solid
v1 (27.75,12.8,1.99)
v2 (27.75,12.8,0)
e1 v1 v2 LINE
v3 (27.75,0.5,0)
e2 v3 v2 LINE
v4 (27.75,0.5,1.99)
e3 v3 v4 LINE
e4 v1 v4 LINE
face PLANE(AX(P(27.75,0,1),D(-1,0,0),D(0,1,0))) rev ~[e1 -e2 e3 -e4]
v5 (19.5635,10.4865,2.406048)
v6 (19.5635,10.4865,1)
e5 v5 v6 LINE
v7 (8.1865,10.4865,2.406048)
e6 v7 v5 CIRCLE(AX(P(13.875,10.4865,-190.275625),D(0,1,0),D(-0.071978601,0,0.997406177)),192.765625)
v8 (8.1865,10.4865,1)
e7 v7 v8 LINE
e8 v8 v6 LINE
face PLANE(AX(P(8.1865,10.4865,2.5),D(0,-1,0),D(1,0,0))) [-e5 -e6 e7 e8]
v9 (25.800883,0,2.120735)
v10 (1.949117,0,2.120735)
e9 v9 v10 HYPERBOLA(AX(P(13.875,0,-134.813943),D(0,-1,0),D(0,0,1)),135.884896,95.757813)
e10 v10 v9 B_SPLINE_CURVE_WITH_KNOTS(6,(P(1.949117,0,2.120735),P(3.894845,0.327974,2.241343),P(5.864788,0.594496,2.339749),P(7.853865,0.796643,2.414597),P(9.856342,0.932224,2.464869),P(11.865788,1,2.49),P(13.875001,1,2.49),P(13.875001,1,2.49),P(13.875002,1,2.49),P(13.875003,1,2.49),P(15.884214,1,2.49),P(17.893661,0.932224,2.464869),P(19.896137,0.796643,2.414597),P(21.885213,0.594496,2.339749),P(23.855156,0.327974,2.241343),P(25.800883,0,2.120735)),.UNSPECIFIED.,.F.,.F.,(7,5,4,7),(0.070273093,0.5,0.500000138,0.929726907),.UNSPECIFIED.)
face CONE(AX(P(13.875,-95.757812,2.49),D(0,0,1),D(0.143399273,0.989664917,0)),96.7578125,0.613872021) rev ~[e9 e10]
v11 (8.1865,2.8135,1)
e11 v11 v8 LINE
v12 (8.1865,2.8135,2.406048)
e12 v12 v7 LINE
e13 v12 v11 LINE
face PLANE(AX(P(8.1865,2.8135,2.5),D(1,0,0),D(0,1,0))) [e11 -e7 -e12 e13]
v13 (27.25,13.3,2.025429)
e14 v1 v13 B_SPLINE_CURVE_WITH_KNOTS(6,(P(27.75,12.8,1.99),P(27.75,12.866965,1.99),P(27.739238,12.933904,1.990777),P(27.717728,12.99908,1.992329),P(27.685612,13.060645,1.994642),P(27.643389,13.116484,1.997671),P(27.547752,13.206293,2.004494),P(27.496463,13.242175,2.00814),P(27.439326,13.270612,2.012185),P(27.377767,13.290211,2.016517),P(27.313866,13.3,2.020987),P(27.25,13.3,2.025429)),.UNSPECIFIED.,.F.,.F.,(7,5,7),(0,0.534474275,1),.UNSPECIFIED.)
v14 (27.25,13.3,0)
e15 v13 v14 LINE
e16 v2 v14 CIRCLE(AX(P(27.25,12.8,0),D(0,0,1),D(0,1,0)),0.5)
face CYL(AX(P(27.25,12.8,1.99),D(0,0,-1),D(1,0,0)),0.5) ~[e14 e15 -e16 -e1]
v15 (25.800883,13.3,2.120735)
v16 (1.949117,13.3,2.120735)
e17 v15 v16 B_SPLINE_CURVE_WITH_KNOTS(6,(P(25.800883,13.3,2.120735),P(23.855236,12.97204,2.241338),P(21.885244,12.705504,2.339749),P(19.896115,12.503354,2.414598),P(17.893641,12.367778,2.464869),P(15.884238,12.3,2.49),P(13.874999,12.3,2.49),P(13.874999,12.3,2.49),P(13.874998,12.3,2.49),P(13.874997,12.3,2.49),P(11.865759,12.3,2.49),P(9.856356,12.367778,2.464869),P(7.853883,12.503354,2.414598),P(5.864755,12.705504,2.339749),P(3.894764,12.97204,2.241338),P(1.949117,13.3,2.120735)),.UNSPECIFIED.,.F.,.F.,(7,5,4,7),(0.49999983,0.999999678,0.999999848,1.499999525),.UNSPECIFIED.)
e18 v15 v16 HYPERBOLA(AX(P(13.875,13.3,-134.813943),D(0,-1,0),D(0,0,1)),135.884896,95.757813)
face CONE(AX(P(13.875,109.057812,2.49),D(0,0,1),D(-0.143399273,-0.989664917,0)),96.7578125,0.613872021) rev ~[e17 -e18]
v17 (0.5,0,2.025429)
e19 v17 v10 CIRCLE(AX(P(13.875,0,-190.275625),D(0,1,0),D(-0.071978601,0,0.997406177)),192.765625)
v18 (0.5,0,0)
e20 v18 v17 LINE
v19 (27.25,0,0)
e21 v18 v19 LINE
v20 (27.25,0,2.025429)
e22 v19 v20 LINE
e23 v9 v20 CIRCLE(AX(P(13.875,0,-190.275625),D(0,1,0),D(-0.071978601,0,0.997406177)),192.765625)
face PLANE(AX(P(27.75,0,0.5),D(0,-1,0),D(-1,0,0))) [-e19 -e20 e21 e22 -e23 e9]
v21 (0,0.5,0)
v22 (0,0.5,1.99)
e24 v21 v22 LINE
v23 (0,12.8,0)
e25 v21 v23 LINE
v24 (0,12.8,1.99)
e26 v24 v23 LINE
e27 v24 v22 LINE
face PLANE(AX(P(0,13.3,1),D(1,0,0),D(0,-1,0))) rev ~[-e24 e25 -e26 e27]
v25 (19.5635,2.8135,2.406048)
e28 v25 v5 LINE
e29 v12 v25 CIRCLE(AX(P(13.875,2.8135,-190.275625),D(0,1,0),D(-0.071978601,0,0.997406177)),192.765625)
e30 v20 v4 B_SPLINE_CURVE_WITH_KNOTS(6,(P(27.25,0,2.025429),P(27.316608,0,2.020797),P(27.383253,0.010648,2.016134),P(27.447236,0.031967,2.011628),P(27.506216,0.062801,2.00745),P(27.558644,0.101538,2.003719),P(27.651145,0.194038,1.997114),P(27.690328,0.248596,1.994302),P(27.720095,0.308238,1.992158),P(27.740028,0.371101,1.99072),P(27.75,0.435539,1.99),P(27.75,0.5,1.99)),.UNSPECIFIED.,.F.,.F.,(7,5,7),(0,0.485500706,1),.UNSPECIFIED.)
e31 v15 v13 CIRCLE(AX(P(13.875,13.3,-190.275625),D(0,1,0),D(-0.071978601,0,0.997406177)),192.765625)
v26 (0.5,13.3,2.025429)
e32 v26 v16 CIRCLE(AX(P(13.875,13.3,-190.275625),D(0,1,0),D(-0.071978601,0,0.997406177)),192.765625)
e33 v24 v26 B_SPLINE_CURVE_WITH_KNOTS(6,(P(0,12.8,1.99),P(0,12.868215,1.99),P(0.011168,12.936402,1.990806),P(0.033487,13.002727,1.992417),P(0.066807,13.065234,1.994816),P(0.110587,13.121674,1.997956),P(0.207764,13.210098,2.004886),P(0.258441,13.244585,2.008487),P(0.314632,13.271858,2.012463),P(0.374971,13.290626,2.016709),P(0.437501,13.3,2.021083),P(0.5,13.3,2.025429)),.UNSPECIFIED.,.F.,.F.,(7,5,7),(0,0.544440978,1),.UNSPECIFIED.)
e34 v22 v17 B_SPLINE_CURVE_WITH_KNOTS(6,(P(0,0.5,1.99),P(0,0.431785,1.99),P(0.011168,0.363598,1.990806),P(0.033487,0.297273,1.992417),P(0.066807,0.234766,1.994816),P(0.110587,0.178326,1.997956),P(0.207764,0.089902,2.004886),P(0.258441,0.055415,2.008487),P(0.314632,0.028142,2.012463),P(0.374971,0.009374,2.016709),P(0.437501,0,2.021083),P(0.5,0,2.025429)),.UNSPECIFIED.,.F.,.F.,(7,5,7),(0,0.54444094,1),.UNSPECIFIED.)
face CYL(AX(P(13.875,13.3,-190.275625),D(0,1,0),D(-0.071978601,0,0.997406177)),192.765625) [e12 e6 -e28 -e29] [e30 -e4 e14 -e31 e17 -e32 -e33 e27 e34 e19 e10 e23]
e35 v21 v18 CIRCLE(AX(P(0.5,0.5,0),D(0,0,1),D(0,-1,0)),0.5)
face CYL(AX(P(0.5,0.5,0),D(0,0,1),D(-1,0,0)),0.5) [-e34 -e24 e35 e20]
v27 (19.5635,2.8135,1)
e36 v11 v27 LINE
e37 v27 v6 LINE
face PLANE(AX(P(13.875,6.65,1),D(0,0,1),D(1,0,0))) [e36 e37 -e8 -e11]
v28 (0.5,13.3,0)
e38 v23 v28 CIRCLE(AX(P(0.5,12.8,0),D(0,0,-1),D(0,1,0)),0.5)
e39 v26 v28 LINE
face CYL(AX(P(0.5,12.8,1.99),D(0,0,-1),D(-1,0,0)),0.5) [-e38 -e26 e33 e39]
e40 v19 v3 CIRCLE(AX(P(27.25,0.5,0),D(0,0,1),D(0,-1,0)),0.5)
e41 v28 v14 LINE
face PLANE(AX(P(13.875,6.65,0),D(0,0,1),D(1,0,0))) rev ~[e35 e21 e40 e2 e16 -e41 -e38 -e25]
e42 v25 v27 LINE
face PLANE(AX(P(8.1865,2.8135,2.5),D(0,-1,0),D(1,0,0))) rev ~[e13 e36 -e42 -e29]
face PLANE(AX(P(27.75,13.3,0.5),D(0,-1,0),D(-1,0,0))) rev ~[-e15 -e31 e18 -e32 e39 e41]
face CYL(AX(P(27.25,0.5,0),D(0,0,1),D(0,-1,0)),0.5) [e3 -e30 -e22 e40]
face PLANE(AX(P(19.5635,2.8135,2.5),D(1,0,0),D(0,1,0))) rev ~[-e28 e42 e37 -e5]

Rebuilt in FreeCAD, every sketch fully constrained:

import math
import FreeCAD as App
import Part
import Sketcher
from FreeCAD import Vector
Q = App.Units.Quantity


def edges_at(feature, points):
    """Names of the edges that pass closest to the given points."""
    edges = feature.Shape.Edges
    near = lambda p: min(range(len(edges)), key=lambda i: edges[i].distToShape(Part.Vertex(*p))[0])
    return sorted({f"Edge{near(p) + 1}" for p in points})

doc = App.newDocument("Part")
body = doc.addObject("PartDesign::Body", "Body")

# Sketch on XY plane
sketch1 = body.newObject("Sketcher::SketchObject", "Sketch")
sketch1.AttachmentSupport = (doc.getObject("XY_Plane"), [""])
sketch1.MapMode = "FlatFace"
sketch1.addGeometry([
    Part.LineSegment(Vector(0, 13, 0), Vector(0, 0, 0)),
    Part.LineSegment(Vector(0, 0, 0), Vector(28, 0, 0)),
    Part.LineSegment(Vector(28, 0, 0), Vector(28, 13, 0)),
    Part.LineSegment(Vector(28, 13, 0), Vector(0, 13, 0)),
], False)
sketch1.addConstraint([
    Sketcher.Constraint("Coincident", 0, 2, 1, 1),
    Sketcher.Constraint("Coincident", 1, 2, 2, 1),
    Sketcher.Constraint("Coincident", 2, 2, 3, 1),
    Sketcher.Constraint("Coincident", 3, 2, 0, 1),
    Sketcher.Constraint("Vertical", 0),
    Sketcher.Constraint("Horizontal", 1),
    Sketcher.Constraint("Vertical", 2),
    Sketcher.Constraint("Horizontal", 3),
    Sketcher.Constraint("Coincident", 0, 2, -1, 1),
    Sketcher.Constraint("DistanceY", 0, 2, 0, 1, Q("13.3 mm")),
    Sketcher.Constraint("DistanceX", 1, 1, 1, 2, Q("27.75 mm")),
])
pad1 = body.newObject("PartDesign::Pad", "Pad")
pad1.Profile = sketch1
pad1.Length = 1

# Sketch on XY plane
sketch2 = body.newObject("Sketcher::SketchObject", "Sketch001")
sketch2.AttachmentSupport = (doc.getObject("XY_Plane"), [""])
sketch2.MapMode = "FlatFace"
sketch2.AttachmentOffset = App.Placement(Vector(0, 0, 1), App.Rotation())
sketch2.addGeometry([
    Part.ArcOfCircle(Part.Circle(Vector(14, 109, 0), Vector(0, 0, 1), 97), math.radians(-98.24), math.radians(-81.76)),
    Part.LineSegment(Vector(0, 13, 0), Vector(0, 0, 0)),
    Part.ArcOfCircle(Part.Circle(Vector(14, -96, 0), Vector(0, 0, 1), 97), math.radians(81.76), math.radians(98.24)),
    Part.LineSegment(Vector(28, 0, 0), Vector(28, 13, 0)),
], False)
sketch2.addConstraint([
    Sketcher.Constraint("Coincident", 0, 1, 1, 1),
    Sketcher.Constraint("Coincident", 1, 2, 2, 2),
    Sketcher.Constraint("Coincident", 2, 1, 3, 1),
    Sketcher.Constraint("Coincident", 3, 2, 0, 2),
    Sketcher.Constraint("Vertical", 1),
    Sketcher.Constraint("Vertical", 3),
    Sketcher.Constraint("Coincident", 1, 2, -1, 1),
    Sketcher.Constraint("Equal", 0, 2),
    Sketcher.Constraint("PointOnObject", 2, 1, -1),
    Sketcher.Constraint("Horizontal", 0, 1, 3, 2),
    Sketcher.Constraint("DistanceY", 1, 2, 1, 1, Q("13.3 mm")),
    Sketcher.Constraint("DistanceX", -1, 1, 2, 1, Q("27.75 mm")),
    Sketcher.Constraint("Radius", 0, Q("96.757812 mm")),
])
pad2 = body.newObject("PartDesign::Pad", "Pad001")
pad2.Profile = sketch2
pad2.Length = 1.5

# Sketch on XY plane
sketch3 = body.newObject("Sketcher::SketchObject", "Sketch002")
sketch3.AttachmentSupport = (doc.getObject("XY_Plane"), [""])
sketch3.MapMode = "FlatFace"
sketch3.AttachmentOffset = App.Placement(Vector(0, 0, 0.5), App.Rotation())
sketch3.addGeometry([
    Part.LineSegment(Vector(-10, -10, 0), Vector(-10, 23, 0)),
    Part.LineSegment(Vector(-10, 23, 0), Vector(38, 23, 0)),
    Part.LineSegment(Vector(38, 23, 0), Vector(38, -10, 0)),
    Part.LineSegment(Vector(38, -10, 0), Vector(-10, -10, 0)),
], False)
sketch3.addConstraint([
    Sketcher.Constraint("Coincident", 0, 2, 1, 1),
    Sketcher.Constraint("Coincident", 1, 2, 2, 1),
    Sketcher.Constraint("Coincident", 2, 2, 3, 1),
    Sketcher.Constraint("Coincident", 3, 2, 0, 1),
    Sketcher.Constraint("Vertical", 0),
    Sketcher.Constraint("Horizontal", 1),
    Sketcher.Constraint("Vertical", 2),
    Sketcher.Constraint("Horizontal", 3),
    Sketcher.Constraint("DistanceY", 0, 1, 0, 2, Q("33.3 mm")),
    Sketcher.Constraint("DistanceX", 0, 2, -1, 1, Q("10 mm")),
    Sketcher.Constraint("DistanceY", 2, 2, -1, 1, Q("10 mm")),
    Sketcher.Constraint("DistanceX", 1, 1, 1, 2, Q("47.75 mm")),
])
pad3 = body.newObject("PartDesign::Pad", "Pad002")
pad3.Profile = sketch3
pad3.Length = 0.5
doc.recompute()

chamfer = body.newObject("PartDesign::Chamfer", "Chamfer")
chamfer.Base = (pad3, edges_at(pad3, [(13.875, 12.3, 1), (13.875, 1, 1)]))
chamfer.ChamferType = "Two distances"
chamfer.Size = 1.05
chamfer.Size2 = 1.49

# Sketch on XY plane
sketch4 = body.newObject("Sketcher::SketchObject", "Sketch003")
sketch4.AttachmentSupport = (doc.getObject("XY_Plane"), [""])
sketch4.MapMode = "FlatFace"
sketch4.AttachmentOffset = App.Placement(Vector(0, 0, 0.5), App.Rotation())
sketch4.addGeometry([
    Part.LineSegment(Vector(-10, 23, 0), Vector(38, 23, 0)),  # 0
    Part.LineSegment(Vector(38, 23, 0), Vector(38, -10, 0)),  # 1
    Part.LineSegment(Vector(38, -10, 0), Vector(-10, -10, 0)),  # 2
    Part.LineSegment(Vector(-10, -10, 0), Vector(-10, 23, 0)),  # 3
    Part.LineSegment(Vector(28, 0, 0), Vector(28, 13, 0)),  # 4
    Part.LineSegment(Vector(28, 13, 0), Vector(0, 13, 0)),  # 5
    Part.LineSegment(Vector(0, 13, 0), Vector(0, 0, 0)),  # 6
    Part.LineSegment(Vector(0, 0, 0), Vector(28, 0, 0)),  # 7
], False)
sketch4.addConstraint([
    Sketcher.Constraint("Coincident", 0, 2, 1, 1),
    Sketcher.Constraint("Coincident", 1, 2, 2, 1),
    Sketcher.Constraint("Coincident", 2, 2, 3, 1),
    Sketcher.Constraint("Coincident", 3, 2, 0, 1),
    Sketcher.Constraint("Coincident", 4, 2, 5, 1),
    Sketcher.Constraint("Coincident", 5, 2, 6, 1),
    Sketcher.Constraint("Coincident", 6, 2, 7, 1),
    Sketcher.Constraint("Coincident", 7, 2, 4, 1),
    Sketcher.Constraint("Horizontal", 0),
    Sketcher.Constraint("Vertical", 1),
    Sketcher.Constraint("Horizontal", 2),
    Sketcher.Constraint("Vertical", 3),
    Sketcher.Constraint("Vertical", 4),
    Sketcher.Constraint("Horizontal", 5),
    Sketcher.Constraint("Vertical", 6),
    Sketcher.Constraint("Horizontal", 7),
    Sketcher.Constraint("Coincident", 6, 2, -1, 1),
    Sketcher.Constraint("DistanceY", 1, 2, 1, 1, Q("33.3 mm")),
    Sketcher.Constraint("DistanceY", 4, 1, 4, 2, Q("13.3 mm")),
    Sketcher.Constraint("DistanceY", 1, 2, -1, 1, Q("10 mm")),
    Sketcher.Constraint("DistanceX", 2, 2, -1, 1, Q("10 mm")),
    Sketcher.Constraint("DistanceX", 4, 2, 0, 2, Q("10 mm")),
    Sketcher.Constraint("DistanceX", 0, 1, 0, 2, Q("47.75 mm")),
])
pocket1 = body.newObject("PartDesign::Pocket", "Pocket")
pocket1.Profile = sketch4
pocket1.Length = 5
pocket1.Reversed = True

# Sketch on XZ plane
sketch5 = body.newObject("Sketcher::SketchObject", "Sketch004")
sketch5.AttachmentSupport = (doc.getObject("XZ_Plane"), [""])
sketch5.MapMode = "FlatFace"
sketch5.AttachmentOffset = App.Placement(Vector(0, 0, -13.3), App.Rotation())
sketch5.addGeometry([
    Part.ArcOfCircle(Part.Circle(Vector(13.9, -190.3, 0), Vector(0, 0, 1), 192.8), math.radians(85.87), math.radians(94.13)),
    Part.LineSegment(Vector(0, 2, 0), Vector(0, 3, 0)),
    Part.LineSegment(Vector(0, 3, 0), Vector(27.8, 3, 0)),
    Part.LineSegment(Vector(27.8, 3, 0), Vector(27.8, 2, 0)),
], False)
sketch5.addConstraint([
    Sketcher.Constraint("Coincident", 0, 2, 1, 1),
    Sketcher.Constraint("Coincident", 1, 2, 2, 1),
    Sketcher.Constraint("Coincident", 2, 2, 3, 1),
    Sketcher.Constraint("Coincident", 3, 2, 0, 1),
    Sketcher.Constraint("Vertical", 1),
    Sketcher.Constraint("Horizontal", 2),
    Sketcher.Constraint("Vertical", 3),
    Sketcher.Constraint("PointOnObject", 0, 2, -2),
    Sketcher.Constraint("Horizontal", 0, 2, 3, 2),
    Sketcher.Constraint("DistanceY", 1, 1, 1, 2, Q("1 mm")),
    Sketcher.Constraint("DistanceX", 2, 1, 2, 2, Q("27.75 mm")),
    Sketcher.Constraint("DistanceY", -1, 1, 0, 2, Q("1.99 mm")),
    Sketcher.Constraint("Radius", 0, Q("192.765625 mm")),
])
pocket2 = body.newObject("PartDesign::Pocket", "Pocket001")
pocket2.Profile = sketch5
pocket2.Length = 30
pocket2.Reversed = True
doc.recompute()

fillet = body.newObject("PartDesign::Fillet", "Fillet")
fillet.Base = (pocket2, edges_at(pocket2, [
    (27.75, 13.3, 0.995),
    (27.75, 0, 0.995),
    (0, 13.3, 0.995),
    (0, 0, 0.995),
]))
fillet.Radius = 0.5

# Sketch on XY plane
sketch6 = body.newObject("Sketcher::SketchObject", "Sketch005")
sketch6.AttachmentSupport = (doc.getObject("XY_Plane"), [""])
sketch6.MapMode = "FlatFace"
sketch6.AttachmentOffset = App.Placement(Vector(0, 0, 2.5), App.Rotation())
sketch6.addGeometry([
    Part.LineSegment(Vector(8, 10, 0), Vector(8, 3, 0)),
    Part.LineSegment(Vector(8, 3, 0), Vector(20, 3, 0)),
    Part.LineSegment(Vector(20, 3, 0), Vector(20, 10, 0)),
    Part.LineSegment(Vector(20, 10, 0), Vector(8, 10, 0)),
], False)
sketch6.addConstraint([
    Sketcher.Constraint("Coincident", 0, 2, 1, 1),
    Sketcher.Constraint("Coincident", 1, 2, 2, 1),
    Sketcher.Constraint("Coincident", 2, 2, 3, 1),
    Sketcher.Constraint("Coincident", 3, 2, 0, 1),
    Sketcher.Constraint("Vertical", 0),
    Sketcher.Constraint("Horizontal", 1),
    Sketcher.Constraint("Vertical", 2),
    Sketcher.Constraint("Horizontal", 3),
    Sketcher.Constraint("DistanceX", 1, 1, 1, 2, Q("11.377 mm")),
    Sketcher.Constraint("DistanceY", 0, 2, 0, 1, Q("7.673 mm")),
    Sketcher.Constraint("DistanceX", -1, 1, 0, 2, Q("8.1865 mm")),
    Sketcher.Constraint("DistanceY", -1, 1, 0, 2, Q("2.8135 mm")),
])
pocket3 = body.newObject("PartDesign::Pocket", "Pocket002")
pocket3.Profile = sketch6
pocket3.Length = 1.5

doc.recompute()
